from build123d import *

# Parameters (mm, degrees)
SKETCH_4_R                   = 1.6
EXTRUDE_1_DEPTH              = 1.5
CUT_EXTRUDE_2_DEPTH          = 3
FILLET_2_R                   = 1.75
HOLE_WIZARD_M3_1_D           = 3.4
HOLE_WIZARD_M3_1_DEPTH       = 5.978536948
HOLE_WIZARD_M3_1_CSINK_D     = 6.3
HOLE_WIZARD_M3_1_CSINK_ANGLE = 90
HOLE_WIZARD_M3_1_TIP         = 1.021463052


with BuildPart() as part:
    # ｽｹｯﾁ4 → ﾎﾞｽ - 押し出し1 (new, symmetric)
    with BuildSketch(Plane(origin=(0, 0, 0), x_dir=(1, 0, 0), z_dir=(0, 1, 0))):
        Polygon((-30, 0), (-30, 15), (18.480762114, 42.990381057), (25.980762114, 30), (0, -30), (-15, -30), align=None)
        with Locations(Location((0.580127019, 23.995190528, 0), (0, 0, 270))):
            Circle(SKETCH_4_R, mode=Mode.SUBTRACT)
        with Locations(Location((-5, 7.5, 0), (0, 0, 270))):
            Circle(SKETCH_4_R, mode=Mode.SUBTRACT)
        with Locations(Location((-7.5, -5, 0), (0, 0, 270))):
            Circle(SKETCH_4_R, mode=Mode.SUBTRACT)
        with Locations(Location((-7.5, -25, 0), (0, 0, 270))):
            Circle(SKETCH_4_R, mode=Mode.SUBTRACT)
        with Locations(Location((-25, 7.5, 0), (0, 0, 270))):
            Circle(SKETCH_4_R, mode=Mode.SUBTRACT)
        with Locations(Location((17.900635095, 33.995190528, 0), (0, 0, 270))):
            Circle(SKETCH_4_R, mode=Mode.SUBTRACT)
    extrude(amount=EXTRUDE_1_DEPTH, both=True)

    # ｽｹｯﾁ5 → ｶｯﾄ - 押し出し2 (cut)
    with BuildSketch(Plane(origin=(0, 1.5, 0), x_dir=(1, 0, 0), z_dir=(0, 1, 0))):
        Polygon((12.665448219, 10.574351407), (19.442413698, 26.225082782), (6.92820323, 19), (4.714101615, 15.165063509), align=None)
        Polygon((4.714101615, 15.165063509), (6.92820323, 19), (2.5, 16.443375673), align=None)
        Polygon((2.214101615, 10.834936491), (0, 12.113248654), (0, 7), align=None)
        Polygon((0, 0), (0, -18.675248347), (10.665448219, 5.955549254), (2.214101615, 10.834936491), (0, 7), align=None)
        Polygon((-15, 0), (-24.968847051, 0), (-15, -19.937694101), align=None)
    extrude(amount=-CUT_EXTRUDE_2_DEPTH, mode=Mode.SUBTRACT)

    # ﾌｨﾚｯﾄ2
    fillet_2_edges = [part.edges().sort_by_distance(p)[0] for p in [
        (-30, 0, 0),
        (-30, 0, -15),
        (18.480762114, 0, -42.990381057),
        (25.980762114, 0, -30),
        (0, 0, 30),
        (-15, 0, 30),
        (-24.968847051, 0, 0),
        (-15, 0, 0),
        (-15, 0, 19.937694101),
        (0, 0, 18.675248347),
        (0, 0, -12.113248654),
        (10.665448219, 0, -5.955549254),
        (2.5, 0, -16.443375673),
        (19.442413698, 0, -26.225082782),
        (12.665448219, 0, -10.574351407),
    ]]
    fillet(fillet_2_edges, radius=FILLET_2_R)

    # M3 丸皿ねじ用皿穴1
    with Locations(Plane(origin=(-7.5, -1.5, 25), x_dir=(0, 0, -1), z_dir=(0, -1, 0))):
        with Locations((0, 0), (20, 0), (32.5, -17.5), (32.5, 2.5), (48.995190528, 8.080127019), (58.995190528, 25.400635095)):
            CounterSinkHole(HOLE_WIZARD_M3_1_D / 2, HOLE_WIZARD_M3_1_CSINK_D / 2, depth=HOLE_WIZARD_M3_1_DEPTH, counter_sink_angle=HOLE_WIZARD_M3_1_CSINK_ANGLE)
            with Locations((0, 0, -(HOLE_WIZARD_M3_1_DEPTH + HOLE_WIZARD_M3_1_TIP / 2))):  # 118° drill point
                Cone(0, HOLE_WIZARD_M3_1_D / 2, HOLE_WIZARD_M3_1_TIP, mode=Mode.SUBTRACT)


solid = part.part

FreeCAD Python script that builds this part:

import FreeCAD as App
import Part
import Sketcher
from FreeCAD import Vector
Q = App.Units.Quantity


def edges_at(feature, points):
    """Names of the edges that pass closest to the given points."""
    edges = feature.Shape.Edges
    near = lambda p: min(range(len(edges)), key=lambda i: edges[i].distToShape(Part.Vertex(*p))[0])
    return sorted({f"Edge{near(p) + 1}" for p in points})

doc = App.newDocument("Part")
body = doc.addObject("PartDesign::Body", "Body")

# Sketch on XZ plane
sketch1 = doc.addObject("Sketcher::SketchObject", "Sketch")
body.addObject(sketch1)
sketch1.AttachmentSupport = (doc.XZ_Plane, [""])
sketch1.MapMode = "FlatFace"
sketch1.addGeometry([
    Part.LineSegment(Vector(-30, -15, 0), Vector(-30, 0, 0)),  # 0
    Part.LineSegment(Vector(-30, 0, 0), Vector(-15, 30, 0)),  # 1
    Part.LineSegment(Vector(-15, 30, 0), Vector(0, 30, 0)),  # 2
    Part.LineSegment(Vector(0, 30, 0), Vector(25.980762, -30, 0)),  # 3
    Part.LineSegment(Vector(25.980762, -30, 0), Vector(18.480762, -42.990381, 0)),  # 4
    Part.LineSegment(Vector(18.480762, -42.990381, 0), Vector(-30, -15, 0)),  # 5
    Part.Circle(Vector(-7.5, 25, 0), Vector(0, 0, 1), 1.6),  # 6
    Part.Circle(Vector(-7.5, 5, 0), Vector(0, 0, 1), 1.6),  # 7
    Part.Circle(Vector(17.900635, -33.995191, 0), Vector(0, 0, 1), 1.6),  # 8
    Part.Circle(Vector(0.580127, -23.995191, 0), Vector(0, 0, 1), 1.6),  # 9
    Part.Circle(Vector(-5, -7.5, 0), Vector(0, 0, 1), 1.6),  # 10
    Part.Circle(Vector(-25, -7.5, 0), Vector(0, 0, 1), 1.6),  # 11
], False)
sketch1.addConstraint([
    Sketcher.Constraint("Coincident", 0, 2, 1, 1),
    Sketcher.Constraint("Coincident", 1, 2, 2, 1),
    Sketcher.Constraint("Coincident", 2, 2, 3, 1),
    Sketcher.Constraint("Coincident", 3, 2, 4, 1),
    Sketcher.Constraint("Coincident", 4, 2, 5, 1),
    Sketcher.Constraint("Coincident", 5, 2, 0, 1),
    Sketcher.Constraint("Vertical", 0),
    Sketcher.Constraint("Horizontal", 2),
    Sketcher.Constraint("Equal", 6, 7),
    Sketcher.Constraint("Equal", 7, 8),
    Sketcher.Constraint("Equal", 8, 9),
    Sketcher.Constraint("Equal", 9, 10),
    Sketcher.Constraint("Equal", 10, 11),
    Sketcher.Constraint("PointOnObject", 0, 2, -1),
    Sketcher.Constraint("PointOnObject", 2, 2, -2),
    Sketcher.Constraint("Perpendicular", 4, 5),
    Sketcher.Constraint("Horizontal", 10, 3, 11, 3),
    Sketcher.Constraint("Vertical", 6, 3, 7, 3),
    Sketcher.Constraint("Equal", 2, 0),
    Sketcher.Constraint("Diameter", 6, 3.2),
    Sketcher.Constraint("DistanceX", 2, 1, 2, 2, 15.0),
    Sketcher.Constraint("Angle", 4, Q("-120 deg")),
    Sketcher.Constraint("Distance", 4, 15.0),
    Sketcher.Constraint("DistanceY", -1, 1, 6, 3, 25.0),
    Sketcher.Constraint("DistanceY", -1, 1, 7, 3, 5.0),
    Sketcher.Constraint("DistanceX", 10, 3, -1, 1, 5.0),
    Sketcher.Constraint("DistanceX", 11, 3, -1, 1, 25.0),
    Sketcher.Constraint("DistanceX", 0, 2, -1, 1, 30.0),
    Sketcher.Constraint("DistanceY", -1, 1, 1, 2, 30.0),
    Sketcher.Constraint("DistanceY", 3, 2, -1, 1, 30.0),
    Sketcher.Constraint("DistanceY", 8, 3, 9, 3, 10.0),
    Sketcher.Constraint("DistanceX", 6, 3, -1, 1, 7.5),
    Sketcher.Constraint("DistanceY", 10, 3, -1, 1, 7.5),
    Sketcher.Constraint("DistanceY", 8, 3, -1, 1, 33.995191),
    Sketcher.Constraint("DistanceX", 9, 3, 8, 3, 17.320508),
    Sketcher.Constraint("DistanceX", -1, 1, 8, 3, 17.900635),
])
pad1 = doc.addObject("PartDesign::Pad", "Pad")
body.addObject(pad1)
pad1.Profile = sketch1
pad1.Length = 3
pad1.Midplane = True

# Sketch on XZ plane
sketch2 = doc.addObject("Sketcher::SketchObject", "Sketch001")
body.addObject(sketch2)
sketch2.AttachmentSupport = (doc.XZ_Plane, [""])
sketch2.MapMode = "FlatFace"
sketch2.AttachmentOffset = App.Placement(Vector(0, 0, -1.5), App.Rotation())
sketch2.addGeometry([
    Part.LineSegment(Vector(12.665448, -10.574351, 0), Vector(19.442414, -26.225083, 0)),  # 0
    Part.LineSegment(Vector(19.442414, -26.225083, 0), Vector(6.928203, -19, 0)),  # 1
    Part.LineSegment(Vector(6.928203, -19, 0), Vector(2.5, -16.443376, 0)),  # 2
    Part.LineSegment(Vector(2.5, -16.443376, 0), Vector(4.714102, -15.165064, 0)),  # 3
    Part.LineSegment(Vector(4.714102, -15.165064, 0), Vector(12.665448, -10.574351, 0)),  # 4
    Part.LineSegment(Vector(2.214102, -10.834936, 0), Vector(0, -12.113249, 0)),  # 5
    Part.LineSegment(Vector(0, -12.113249, 0), Vector(0, 18.675248, 0)),  # 6
    Part.LineSegment(Vector(0, 18.675248, 0), Vector(10.665448, -5.955549, 0)),  # 7
    Part.LineSegment(Vector(10.665448, -5.955549, 0), Vector(2.214102, -10.834936, 0)),  # 8
    Part.LineSegment(Vector(-15, 0, 0), Vector(-24.968847, 0, 0)),  # 9
    Part.LineSegment(Vector(-24.968847, 0, 0), Vector(-15, 19.937694, 0)),  # 10
    Part.LineSegment(Vector(-15, 19.937694, 0), Vector(-15, 0, 0)),  # 11
], False)
sketch2.addConstraint([
    Sketcher.Constraint("Coincident", 0, 2, 1, 1),
    Sketcher.Constraint("Coincident", 1, 2, 2, 1),
    Sketcher.Constraint("Coincident", 2, 2, 3, 1),
    Sketcher.Constraint("Coincident", 3, 2, 4, 1),
    Sketcher.Constraint("Coincident", 4, 2, 0, 1),
    Sketcher.Constraint("Coincident", 5, 2, 6, 1),
    Sketcher.Constraint("Coincident", 6, 2, 7, 1),
    Sketcher.Constraint("Coincident", 7, 2, 8, 1),
    Sketcher.Constraint("Coincident", 8, 2, 5, 1),
    Sketcher.Constraint("Coincident", 9, 2, 10, 1),
    Sketcher.Constraint("Coincident", 10, 2, 11, 1),
    Sketcher.Constraint("Coincident", 11, 2, 9, 1),
    Sketcher.Constraint("Vertical", 6),
    Sketcher.Constraint("Horizontal", 9),
    Sketcher.Constraint("Vertical", 11),
    Sketcher.Constraint("PointOnObject", 5, 2, -2),
    Sketcher.Constraint("PointOnObject", 9, 2, -1),
    Sketcher.Constraint("Parallel", 1, 2),
    Sketcher.Constraint("Parallel", 3, 4),
    Sketcher.Constraint("Parallel", 4, 5),
    Sketcher.Constraint("Parallel", 0, 7),
    Sketcher.Constraint("Parallel", 5, 8),
    Sketcher.Constraint("Equal", 3, 5),
    Sketcher.Constraint("Angle", 1, Q("150 deg")),
    Sketcher.Constraint("Angle", 3, Q("30 deg")),
    Sketcher.Constraint("DistanceY", 1, 2, -1, 1, 19.0),
    Sketcher.Constraint("DistanceX", 10, 2, -1, 1, 15.0),
    Sketcher.Constraint("DistanceX", 7, 2, 4, 2, 2.0),
    Sketcher.Constraint("DistanceX", -1, 1, 2, 2, 2.5),
    Sketcher.Constraint("DistanceX", -1, 1, 3, 2, 4.714102),
    Sketcher.Constraint("DistanceX", 3, 2, 1, 2, 2.214102),
    Sketcher.Constraint("DistanceY", 4, 2, 6, 2, 29.2496),
    Sketcher.Constraint("DistanceY", 5, 2, 7, 2, 6.157699),
    Sketcher.Constraint("Distance", 0, 17.054989),
    Sketcher.Constraint("Distance", 10, 22.29102),
    Sketcher.Constraint("DistanceX", 9, 2, 9, 1, 9.968847),
])
pocket1 = doc.addObject("PartDesign::Pocket", "Pocket")
body.addObject(pocket1)
pocket1.Profile = sketch2
pocket1.Length = 3
pocket1.Reversed = True
doc.recompute()

fillet = doc.addObject("PartDesign::Fillet", "Fillet")
body.addObject(fillet)
fillet.Base = (pocket1, edges_at(pocket1, [
    (-30, 0, 0),
    (-30, 0, -15),
    (18.481, 0, -42.99),
    (25.981, 0, -30),
    (0, 0, 30),
    (-15, 0, 30),
    (-24.969, 0, 0),
    (-15, 0, 0),
    (-15, 0, 19.938),
    (0, 0, 18.675),
    (0, 0, -12.113),
    (10.665, 0, -5.956),
    (2.5, 0, -16.443),
    (19.442, 0, -26.225),
    (12.665, 0, -10.574),
]))
fillet.Radius = 1.75

# Sketch on XZ plane
sketch3 = doc.addObject("Sketcher::SketchObject", "Sketch002")
body.addObject(sketch3)
sketch3.AttachmentSupport = (doc.XZ_Plane, [""])
sketch3.MapMode = "FlatFace"
sketch3.AttachmentOffset = App.Placement(Vector(0, 0, 1.5), App.Rotation())
sketch3.addGeometry([
    Part.Circle(Vector(-7.5, 25, 0), Vector(0, 0, 1), 1.7),  # 0
    Part.Circle(Vector(-7.5, 5, 0), Vector(0, 0, 1), 1.7),  # 1
    Part.Circle(Vector(-25, -7.5, 0), Vector(0, 0, 1), 1.7),  # 2
    Part.Circle(Vector(-5, -7.5, 0), Vector(0, 0, 1), 1.7),  # 3
    Part.Circle(Vector(0.580127, -23.995191, 0), Vector(0, 0, 1), 1.7),  # 4
    Part.Circle(Vector(17.900635, -33.995191, 0), Vector(0, 0, 1), 1.7),  # 5
], False)
sketch3.addConstraint([
    Sketcher.Constraint("Equal", 0, 1),
    Sketcher.Constraint("Equal", 1, 2),
    Sketcher.Constraint("Equal", 2, 3),
    Sketcher.Constraint("Equal", 3, 4),
    Sketcher.Constraint("Equal", 4, 5),
    Sketcher.Constraint("Horizontal", 2, 3, 3, 3),
    Sketcher.Constraint("Vertical", 0, 3, 1, 3),
    Sketcher.Constraint("Diameter", 0, 3.4),
    Sketcher.Constraint("DistanceY", -1, 1, 0, 3, 25.0),
    Sketcher.Constraint("DistanceY", -1, 1, 1, 3, 5.0),
    Sketcher.Constraint("DistanceX", 2, 3, -1, 1, 25.0),
    Sketcher.Constraint("DistanceX", 3, 3, -1, 1, 5.0),
    Sketcher.Constraint("DistanceY", 5, 3, 4, 3, 10.0),
    Sketcher.Constraint("DistanceX", 0, 3, -1, 1, 7.5),
    Sketcher.Constraint("DistanceY", 2, 3, -1, 1, 7.5),
    Sketcher.Constraint("DistanceY", 4, 3, -1, 1, 23.995191),
    Sketcher.Constraint("DistanceX", 4, 3, 5, 3, 17.320508),
    Sketcher.Constraint("DistanceX", -1, 1, 4, 3, 0.580127),
])
doc.recompute()
hole = doc.addObject("PartDesign::Hole", "Hole")
body.addObject(hole)
hole.Profile = sketch3
hole.ThreadType = "None"
hole.Diameter = 3.4
hole.DepthType = "Dimension"
hole.Depth = 5.978537
hole.DrillPoint = "Angled"
hole.DrillPointAngle = 118
hole.HoleCutType = "Countersink"
hole.HoleCutDiameter = 6.3
hole.HoleCutCountersinkAngle = 90

doc.recompute()
